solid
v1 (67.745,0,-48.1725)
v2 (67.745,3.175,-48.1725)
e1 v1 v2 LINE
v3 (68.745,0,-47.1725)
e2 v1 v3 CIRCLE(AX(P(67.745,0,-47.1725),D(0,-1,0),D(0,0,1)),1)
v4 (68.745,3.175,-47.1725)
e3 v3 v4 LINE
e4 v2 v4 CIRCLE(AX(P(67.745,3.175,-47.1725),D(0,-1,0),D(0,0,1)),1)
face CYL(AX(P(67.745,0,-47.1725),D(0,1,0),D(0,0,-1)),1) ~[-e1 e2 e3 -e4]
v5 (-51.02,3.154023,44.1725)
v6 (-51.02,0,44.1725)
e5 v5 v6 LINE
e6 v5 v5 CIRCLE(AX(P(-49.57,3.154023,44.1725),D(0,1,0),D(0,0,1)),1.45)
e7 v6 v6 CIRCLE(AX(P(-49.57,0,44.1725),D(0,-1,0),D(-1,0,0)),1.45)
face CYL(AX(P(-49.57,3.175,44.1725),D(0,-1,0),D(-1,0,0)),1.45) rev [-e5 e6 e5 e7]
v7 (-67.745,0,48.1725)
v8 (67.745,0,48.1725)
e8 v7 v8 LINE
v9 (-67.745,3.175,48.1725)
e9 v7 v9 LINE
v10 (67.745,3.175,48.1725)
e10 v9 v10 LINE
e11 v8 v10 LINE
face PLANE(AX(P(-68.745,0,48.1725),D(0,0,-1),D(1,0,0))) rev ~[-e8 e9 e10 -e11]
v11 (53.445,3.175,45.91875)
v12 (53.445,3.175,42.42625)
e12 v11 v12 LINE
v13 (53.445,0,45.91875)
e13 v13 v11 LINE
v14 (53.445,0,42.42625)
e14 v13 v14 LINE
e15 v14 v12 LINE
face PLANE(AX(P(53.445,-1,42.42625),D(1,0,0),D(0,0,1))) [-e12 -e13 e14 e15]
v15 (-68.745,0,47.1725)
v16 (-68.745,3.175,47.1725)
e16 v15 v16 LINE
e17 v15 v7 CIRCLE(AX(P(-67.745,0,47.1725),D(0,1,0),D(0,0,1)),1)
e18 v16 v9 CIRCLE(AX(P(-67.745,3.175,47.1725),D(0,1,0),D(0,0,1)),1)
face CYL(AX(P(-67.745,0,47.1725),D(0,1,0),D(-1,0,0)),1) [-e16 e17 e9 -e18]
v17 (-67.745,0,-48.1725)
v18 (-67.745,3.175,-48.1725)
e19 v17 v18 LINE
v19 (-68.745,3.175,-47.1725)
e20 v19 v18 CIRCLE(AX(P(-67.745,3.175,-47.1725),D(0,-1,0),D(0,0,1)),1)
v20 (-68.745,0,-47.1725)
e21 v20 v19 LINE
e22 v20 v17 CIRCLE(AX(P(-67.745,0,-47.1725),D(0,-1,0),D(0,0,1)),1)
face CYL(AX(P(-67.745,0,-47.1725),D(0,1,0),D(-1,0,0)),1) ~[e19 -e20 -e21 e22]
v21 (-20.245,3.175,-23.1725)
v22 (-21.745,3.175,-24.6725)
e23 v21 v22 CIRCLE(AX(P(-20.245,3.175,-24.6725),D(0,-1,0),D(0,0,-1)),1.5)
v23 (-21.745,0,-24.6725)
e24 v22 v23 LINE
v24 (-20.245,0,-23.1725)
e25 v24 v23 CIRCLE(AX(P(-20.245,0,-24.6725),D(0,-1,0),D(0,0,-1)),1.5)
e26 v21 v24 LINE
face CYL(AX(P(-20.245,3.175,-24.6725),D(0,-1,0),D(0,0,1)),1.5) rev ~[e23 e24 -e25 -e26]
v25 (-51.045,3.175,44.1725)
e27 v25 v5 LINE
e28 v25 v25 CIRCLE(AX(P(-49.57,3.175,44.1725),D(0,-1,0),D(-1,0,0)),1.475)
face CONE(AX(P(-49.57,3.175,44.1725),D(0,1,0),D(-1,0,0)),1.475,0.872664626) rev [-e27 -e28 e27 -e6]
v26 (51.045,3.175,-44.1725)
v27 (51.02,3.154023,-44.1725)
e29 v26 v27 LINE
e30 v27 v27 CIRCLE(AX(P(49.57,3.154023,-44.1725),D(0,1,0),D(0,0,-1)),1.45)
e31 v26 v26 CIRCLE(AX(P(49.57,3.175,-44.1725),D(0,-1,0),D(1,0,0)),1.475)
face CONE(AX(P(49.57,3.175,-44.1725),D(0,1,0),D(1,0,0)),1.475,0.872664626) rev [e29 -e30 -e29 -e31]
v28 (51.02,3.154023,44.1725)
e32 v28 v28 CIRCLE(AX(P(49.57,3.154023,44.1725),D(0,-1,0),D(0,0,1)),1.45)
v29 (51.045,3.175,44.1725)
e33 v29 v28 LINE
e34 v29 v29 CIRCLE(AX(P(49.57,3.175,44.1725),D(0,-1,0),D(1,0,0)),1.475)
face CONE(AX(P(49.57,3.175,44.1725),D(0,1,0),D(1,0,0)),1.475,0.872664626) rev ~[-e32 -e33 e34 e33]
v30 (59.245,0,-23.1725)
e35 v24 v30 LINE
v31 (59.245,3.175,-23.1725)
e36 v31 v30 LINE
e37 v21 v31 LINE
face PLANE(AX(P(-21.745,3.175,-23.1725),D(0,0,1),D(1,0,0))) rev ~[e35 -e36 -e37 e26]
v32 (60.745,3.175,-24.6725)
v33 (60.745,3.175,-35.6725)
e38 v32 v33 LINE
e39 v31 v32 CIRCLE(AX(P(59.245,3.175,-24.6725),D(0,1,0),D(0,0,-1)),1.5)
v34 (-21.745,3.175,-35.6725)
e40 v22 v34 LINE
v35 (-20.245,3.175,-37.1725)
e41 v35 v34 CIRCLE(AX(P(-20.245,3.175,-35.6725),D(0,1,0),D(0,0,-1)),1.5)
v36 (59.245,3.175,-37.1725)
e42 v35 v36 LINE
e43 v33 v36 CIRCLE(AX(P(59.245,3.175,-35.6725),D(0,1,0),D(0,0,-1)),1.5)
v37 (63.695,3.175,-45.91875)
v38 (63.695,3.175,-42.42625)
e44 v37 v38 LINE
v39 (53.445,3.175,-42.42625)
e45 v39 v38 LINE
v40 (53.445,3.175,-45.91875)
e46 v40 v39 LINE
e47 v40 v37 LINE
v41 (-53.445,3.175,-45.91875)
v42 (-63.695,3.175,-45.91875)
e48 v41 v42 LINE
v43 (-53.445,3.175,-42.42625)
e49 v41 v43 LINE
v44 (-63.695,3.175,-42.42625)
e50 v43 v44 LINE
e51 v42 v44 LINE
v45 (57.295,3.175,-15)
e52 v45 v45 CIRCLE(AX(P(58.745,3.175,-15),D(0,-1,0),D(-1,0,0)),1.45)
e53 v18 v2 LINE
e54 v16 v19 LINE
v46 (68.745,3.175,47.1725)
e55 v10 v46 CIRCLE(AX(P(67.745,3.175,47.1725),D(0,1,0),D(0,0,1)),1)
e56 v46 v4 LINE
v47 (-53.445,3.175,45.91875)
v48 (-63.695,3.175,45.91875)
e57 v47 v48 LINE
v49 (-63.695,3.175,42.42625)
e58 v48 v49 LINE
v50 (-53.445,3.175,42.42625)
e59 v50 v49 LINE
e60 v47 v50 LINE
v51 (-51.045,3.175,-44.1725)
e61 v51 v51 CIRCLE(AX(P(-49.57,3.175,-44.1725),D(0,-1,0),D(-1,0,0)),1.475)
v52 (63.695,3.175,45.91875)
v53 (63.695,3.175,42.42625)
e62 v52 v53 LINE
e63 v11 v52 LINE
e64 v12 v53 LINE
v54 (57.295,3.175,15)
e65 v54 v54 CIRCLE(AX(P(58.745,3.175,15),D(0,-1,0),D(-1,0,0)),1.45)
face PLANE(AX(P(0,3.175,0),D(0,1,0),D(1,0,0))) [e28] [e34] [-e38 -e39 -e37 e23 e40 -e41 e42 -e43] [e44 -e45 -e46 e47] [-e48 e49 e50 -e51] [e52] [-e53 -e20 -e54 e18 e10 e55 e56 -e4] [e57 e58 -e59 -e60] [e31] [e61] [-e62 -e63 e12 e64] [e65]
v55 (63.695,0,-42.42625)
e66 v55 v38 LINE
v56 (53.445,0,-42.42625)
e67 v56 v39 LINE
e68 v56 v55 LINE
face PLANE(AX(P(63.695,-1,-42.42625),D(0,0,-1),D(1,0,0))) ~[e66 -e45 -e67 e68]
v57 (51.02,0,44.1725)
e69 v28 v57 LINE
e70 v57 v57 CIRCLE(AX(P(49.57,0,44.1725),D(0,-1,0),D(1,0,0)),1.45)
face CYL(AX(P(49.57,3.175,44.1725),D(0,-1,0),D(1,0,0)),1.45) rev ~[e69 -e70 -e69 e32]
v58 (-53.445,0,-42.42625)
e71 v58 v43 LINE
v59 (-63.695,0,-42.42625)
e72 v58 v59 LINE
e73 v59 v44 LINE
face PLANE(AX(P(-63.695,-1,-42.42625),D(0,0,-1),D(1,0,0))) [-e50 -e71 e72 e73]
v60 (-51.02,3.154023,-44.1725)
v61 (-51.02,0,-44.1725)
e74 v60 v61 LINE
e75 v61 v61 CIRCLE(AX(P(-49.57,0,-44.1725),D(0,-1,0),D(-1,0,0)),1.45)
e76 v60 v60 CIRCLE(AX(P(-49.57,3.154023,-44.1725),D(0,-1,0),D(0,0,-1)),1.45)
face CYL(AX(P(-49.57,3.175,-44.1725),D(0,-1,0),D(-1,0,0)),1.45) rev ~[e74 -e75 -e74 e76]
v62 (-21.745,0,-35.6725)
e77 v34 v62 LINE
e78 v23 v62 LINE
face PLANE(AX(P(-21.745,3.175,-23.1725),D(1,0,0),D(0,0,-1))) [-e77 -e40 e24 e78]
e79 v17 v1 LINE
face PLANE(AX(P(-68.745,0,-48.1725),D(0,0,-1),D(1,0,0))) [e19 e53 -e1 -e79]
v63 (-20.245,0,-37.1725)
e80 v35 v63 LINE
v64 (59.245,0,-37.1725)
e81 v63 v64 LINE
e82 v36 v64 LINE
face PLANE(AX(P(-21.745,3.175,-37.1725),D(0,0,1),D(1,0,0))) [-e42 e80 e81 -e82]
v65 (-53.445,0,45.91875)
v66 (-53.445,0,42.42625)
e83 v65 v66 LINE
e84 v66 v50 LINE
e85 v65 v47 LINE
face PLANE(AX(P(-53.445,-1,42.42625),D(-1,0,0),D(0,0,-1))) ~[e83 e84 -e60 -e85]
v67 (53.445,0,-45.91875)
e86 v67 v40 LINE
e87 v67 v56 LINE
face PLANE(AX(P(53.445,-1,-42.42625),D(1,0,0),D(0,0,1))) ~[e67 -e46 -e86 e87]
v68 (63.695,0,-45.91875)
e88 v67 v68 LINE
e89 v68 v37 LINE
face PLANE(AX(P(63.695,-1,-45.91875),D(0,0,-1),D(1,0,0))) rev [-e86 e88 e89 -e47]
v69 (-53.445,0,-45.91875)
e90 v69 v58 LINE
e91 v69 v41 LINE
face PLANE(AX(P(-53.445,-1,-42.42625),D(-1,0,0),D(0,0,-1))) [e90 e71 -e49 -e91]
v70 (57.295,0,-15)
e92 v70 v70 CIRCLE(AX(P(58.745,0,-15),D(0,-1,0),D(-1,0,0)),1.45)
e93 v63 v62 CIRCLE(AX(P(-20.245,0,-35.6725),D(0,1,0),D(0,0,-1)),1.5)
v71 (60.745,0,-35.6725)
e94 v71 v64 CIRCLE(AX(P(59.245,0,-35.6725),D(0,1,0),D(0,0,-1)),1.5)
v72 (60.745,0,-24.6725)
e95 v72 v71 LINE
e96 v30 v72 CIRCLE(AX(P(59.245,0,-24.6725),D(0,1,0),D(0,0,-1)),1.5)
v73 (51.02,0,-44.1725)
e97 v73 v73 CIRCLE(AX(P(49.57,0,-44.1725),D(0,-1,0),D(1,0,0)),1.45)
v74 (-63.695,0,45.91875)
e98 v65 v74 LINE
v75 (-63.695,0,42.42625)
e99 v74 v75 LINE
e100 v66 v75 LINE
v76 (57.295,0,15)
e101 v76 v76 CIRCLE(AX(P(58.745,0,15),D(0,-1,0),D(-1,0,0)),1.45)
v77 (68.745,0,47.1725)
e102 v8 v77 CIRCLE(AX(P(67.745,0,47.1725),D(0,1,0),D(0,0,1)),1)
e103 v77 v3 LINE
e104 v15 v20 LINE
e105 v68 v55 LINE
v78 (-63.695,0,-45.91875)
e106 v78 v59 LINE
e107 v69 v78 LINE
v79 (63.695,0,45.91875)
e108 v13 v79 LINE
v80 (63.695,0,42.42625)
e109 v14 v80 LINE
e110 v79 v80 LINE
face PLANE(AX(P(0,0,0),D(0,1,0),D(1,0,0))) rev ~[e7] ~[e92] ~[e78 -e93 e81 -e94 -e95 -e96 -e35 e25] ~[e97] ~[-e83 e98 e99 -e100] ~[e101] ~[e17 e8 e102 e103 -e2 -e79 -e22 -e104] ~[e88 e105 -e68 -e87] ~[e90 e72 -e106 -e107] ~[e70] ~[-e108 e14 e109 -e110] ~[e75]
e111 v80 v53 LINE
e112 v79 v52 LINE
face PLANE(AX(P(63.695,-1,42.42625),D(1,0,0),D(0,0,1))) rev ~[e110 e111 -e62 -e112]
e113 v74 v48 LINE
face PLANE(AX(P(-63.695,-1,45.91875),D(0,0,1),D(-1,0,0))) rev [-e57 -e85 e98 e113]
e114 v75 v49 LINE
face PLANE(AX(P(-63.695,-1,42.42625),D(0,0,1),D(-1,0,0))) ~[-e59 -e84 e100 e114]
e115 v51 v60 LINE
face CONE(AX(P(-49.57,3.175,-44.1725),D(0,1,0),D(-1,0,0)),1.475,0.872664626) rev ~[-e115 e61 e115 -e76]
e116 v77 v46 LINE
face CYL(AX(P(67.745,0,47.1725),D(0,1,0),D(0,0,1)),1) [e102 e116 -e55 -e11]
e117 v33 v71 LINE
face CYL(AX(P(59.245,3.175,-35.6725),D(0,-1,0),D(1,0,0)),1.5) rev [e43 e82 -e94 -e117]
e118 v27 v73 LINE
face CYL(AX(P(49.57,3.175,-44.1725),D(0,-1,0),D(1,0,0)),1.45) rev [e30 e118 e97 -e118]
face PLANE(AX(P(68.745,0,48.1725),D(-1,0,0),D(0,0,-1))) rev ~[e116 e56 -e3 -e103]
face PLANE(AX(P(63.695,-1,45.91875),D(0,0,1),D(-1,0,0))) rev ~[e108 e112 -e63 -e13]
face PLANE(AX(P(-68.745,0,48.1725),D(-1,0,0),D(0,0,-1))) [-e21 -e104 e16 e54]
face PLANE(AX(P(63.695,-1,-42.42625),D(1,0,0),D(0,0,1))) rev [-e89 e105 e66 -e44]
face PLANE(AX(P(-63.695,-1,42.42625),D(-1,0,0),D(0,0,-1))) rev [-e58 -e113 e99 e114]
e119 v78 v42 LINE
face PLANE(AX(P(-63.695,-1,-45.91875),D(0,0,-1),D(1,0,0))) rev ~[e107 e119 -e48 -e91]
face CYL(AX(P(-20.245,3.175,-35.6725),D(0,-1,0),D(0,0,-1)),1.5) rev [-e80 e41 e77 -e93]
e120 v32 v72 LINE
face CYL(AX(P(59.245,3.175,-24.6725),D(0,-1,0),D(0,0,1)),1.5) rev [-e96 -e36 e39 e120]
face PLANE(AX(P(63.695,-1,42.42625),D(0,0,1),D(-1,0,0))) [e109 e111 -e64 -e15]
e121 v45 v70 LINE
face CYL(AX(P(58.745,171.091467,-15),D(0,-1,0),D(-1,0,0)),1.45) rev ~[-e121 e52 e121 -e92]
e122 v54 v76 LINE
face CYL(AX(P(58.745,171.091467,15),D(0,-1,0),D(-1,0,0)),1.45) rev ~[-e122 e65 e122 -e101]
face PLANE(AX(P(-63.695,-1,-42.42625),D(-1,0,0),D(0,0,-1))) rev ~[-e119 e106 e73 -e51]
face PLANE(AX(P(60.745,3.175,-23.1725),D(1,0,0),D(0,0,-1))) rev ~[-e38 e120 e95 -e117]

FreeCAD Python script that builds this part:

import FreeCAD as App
import Part
import Sketcher

V = App.Vector
Q = App.Units.Quantity


def edges_at(feature, points):
    """Names of the edges that pass closest to the given points."""
    edges = feature.Shape.Edges
    near = lambda p: min(range(len(edges)), key=lambda i: edges[i].distToShape(Part.Vertex(*p))[0])
    return sorted({f"Edge{near(p) + 1}" for p in points})


def add_polygon(sketch, points):
    """Adds a closed chain of lines whose ends are joined by coincident constraints."""
    first, n = sketch.GeometryCount, len(points)
    for a, b in zip(points, points[1:] + points[:1]):
        sketch.addGeometry(Part.LineSegment(App.Vector(*a, 0), App.Vector(*b, 0)), False)
    for i in range(n):
        sketch.addConstraint(Sketcher.Constraint("Coincident", first + i, 2, first + (i + 1) % n, 1))

doc = App.newDocument("Part")
body = doc.addObject("PartDesign::Body", "Body")

sketch1 = body.newObject("Sketcher::SketchObject", "Sketch")
sketch1.AttachmentSupport = (doc.getObject("XZ_Plane"), [""])
sketch1.MapMode = "FlatFace"
add_polygon(sketch1, [(-68.745, -48.1725), (-68.745, 48.1725), (68.745, 48.1725), (68.745, -48.1725)])
sketch1.addConstraint([
    Sketcher.Constraint("Vertical", 0),
    Sketcher.Constraint("Horizontal", 1),
    Sketcher.Constraint("Vertical", 2),
    Sketcher.Constraint("Horizontal", 3),
    Sketcher.Constraint("Symmetric", 0, 2, 2, 2, -1, 1),
    Sketcher.Constraint("DistanceX", 1, 1, 1, 2, Q("137.49 mm")),
    Sketcher.Constraint("DistanceY", 0, 1, 0, 2, Q("96.345 mm")),
])
pad1 = body.newObject("PartDesign::Pad", "Pad")
pad1.Profile = sketch1
pad1.Length = 3.175
pad1.Reversed = True

sketch2 = body.newObject("Sketcher::SketchObject", "Sketch001")
sketch2.AttachmentSupport = (doc.getObject("XZ_Plane"), [""])
sketch2.MapMode = "FlatFace"
sketch2.AttachmentOffset = App.Placement(V(0, 0, 1), App.Rotation())
add_polygon(sketch2, [(-63.695, -45.91875), (-63.695, -42.42625), (-53.445, -42.42625), (-53.445, -45.91875)])
sketch2.addConstraint([
    Sketcher.Constraint("Vertical", 0),
    Sketcher.Constraint("Horizontal", 1),
    Sketcher.Constraint("Vertical", 2),
    Sketcher.Constraint("Horizontal", 3),
    Sketcher.Constraint("DistanceX", 1, 1, 1, 2, Q("10.25 mm")),
    Sketcher.Constraint("DistanceY", 0, 1, 0, 2, Q("3.4925 mm")),
    Sketcher.Constraint("DistanceX", 0, 2, -1, 1, Q("63.695 mm")),
    Sketcher.Constraint("DistanceY", 0, 2, -1, 1, Q("42.42625 mm")),
])
pocket1 = body.newObject("PartDesign::Pocket", "Pocket")
pocket1.Profile = sketch2
pocket1.Length = 5.175

sketch3 = body.newObject("Sketcher::SketchObject", "Sketch002")
sketch3.AttachmentSupport = (doc.getObject("XZ_Plane"), [""])
sketch3.MapMode = "FlatFace"
sketch3.AttachmentOffset = App.Placement(V(0, 0, -3.175), App.Rotation())
sketch3.addGeometry(Part.Circle(V(-49.57, -44.1725, 0), V(0, 0, 1), 1.45), False)
sketch3.addConstraint([
    Sketcher.Constraint("Diameter", 0, Q("2.9 mm")),
    Sketcher.Constraint("DistanceX", 0, 3, -1, 1, Q("49.57 mm")),
    Sketcher.Constraint("DistanceY", 0, 3, -1, 1, Q("44.1725 mm")),
])
doc.recompute()
hole = body.newObject("PartDesign::Hole", "Hole")
hole.Profile = sketch3
hole.ThreadType = "None"
hole.Diameter = 2.9
hole.DepthType = "ThroughAll"
hole.HoleCutType = "Countersink"
hole.HoleCutDiameter = 2.95
hole.HoleCutCountersinkAngle = 100
hole.Reversed = True
doc.recompute()

mirrored = body.newObject("PartDesign::Mirrored", "Mirrored")
mirrored.Originals = [pocket1, hole]
mirrored.MirrorPlane = (doc.getObject("YZ_Plane"), [""])
body.Tip = mirrored
doc.recompute()

mirrored2 = body.newObject("PartDesign::Mirrored", "Mirrored001")
mirrored2.Originals = [hole, pocket1]
mirrored2.MirrorPlane = (doc.getObject("XY_Plane"), [""])
body.Tip = mirrored2

sketch4 = body.newObject("Sketcher::SketchObject", "Sketch003")
sketch4.AttachmentSupport = (doc.getObject("XZ_Plane"), [""])
sketch4.MapMode = "FlatFace"
sketch4.AttachmentOffset = App.Placement(V(0, 0, 1), App.Rotation())
add_polygon(sketch4, [(63.695, 45.91875), (63.695, 42.42625), (53.445, 42.42625), (53.445, 45.91875)])
sketch4.addConstraint([
    Sketcher.Constraint("Vertical", 0),
    Sketcher.Constraint("Horizontal", 1),
    Sketcher.Constraint("Vertical", 2),
    Sketcher.Constraint("Horizontal", 3),
    Sketcher.Constraint("DistanceX", 1, 2, 1, 1, Q("10.25 mm")),
    Sketcher.Constraint("DistanceY", 0, 2, 0, 1, Q("3.4925 mm")),
    Sketcher.Constraint("DistanceX", -1, 1, 0, 2, Q("63.695 mm")),
    Sketcher.Constraint("DistanceY", -1, 1, 0, 2, Q("42.42625 mm")),
])
pocket2 = body.newObject("PartDesign::Pocket", "Pocket001")
pocket2.Profile = sketch4
pocket2.Length = 5.175

sketch5 = body.newObject("Sketcher::SketchObject", "Sketch004")
sketch5.AttachmentSupport = (doc.getObject("XZ_Plane"), [""])
sketch5.MapMode = "FlatFace"
sketch5.AttachmentOffset = App.Placement(V(0, 0, -3.175), App.Rotation())
sketch5.addGeometry(Part.Circle(V(49.57, 44.1725, 0), V(0, 0, 1), 1.45), False)
sketch5.addConstraint([
    Sketcher.Constraint("Diameter", 0, Q("2.9 mm")),
    Sketcher.Constraint("DistanceX", -1, 1, 0, 3, Q("49.57 mm")),
    Sketcher.Constraint("DistanceY", -1, 1, 0, 3, Q("44.1725 mm")),
])
doc.recompute()
hole2 = body.newObject("PartDesign::Hole", "Hole001")
hole2.Profile = sketch5
hole2.ThreadType = "None"
hole2.Diameter = 2.9
hole2.DepthType = "ThroughAll"
hole2.HoleCutType = "Countersink"
hole2.HoleCutDiameter = 2.95
hole2.HoleCutCountersinkAngle = 100
hole2.Reversed = True

sketch6 = body.newObject("Sketcher::SketchObject", "Sketch005")
sketch6.AttachmentSupport = (doc.getObject("XZ_Plane"), [""])
sketch6.MapMode = "FlatFace"
sketch6.AttachmentOffset = App.Placement(V(0, 0, -3.175), App.Rotation())
add_polygon(sketch6, [(-21.745, -37.1725), (-21.745, -23.1725), (60.745, -23.1725), (60.745, -37.1725)])
sketch6.addConstraint([
    Sketcher.Constraint("Vertical", 0),
    Sketcher.Constraint("Horizontal", 1),
    Sketcher.Constraint("Vertical", 2),
    Sketcher.Constraint("Horizontal", 3),
    Sketcher.Constraint("DistanceY", 0, 1, 0, 2, Q("14 mm")),
    Sketcher.Constraint("DistanceX", 1, 1, 1, 2, Q("82.49 mm")),
    Sketcher.Constraint("DistanceX", 0, 2, -1, 1, Q("21.745 mm")),
    Sketcher.Constraint("DistanceY", 0, 2, -1, 1, Q("23.1725 mm")),
])
pocket3 = body.newObject("PartDesign::Pocket", "Pocket002")
pocket3.Profile = sketch6
pocket3.Type = "ThroughAll"
pocket3.Midplane = True
doc.recompute()

fillet = body.newObject("PartDesign::Fillet", "Fillet")
fillet.Base = (pocket3, edges_at(pocket3, [
    (-21.745, 1.587, -23.172),
    (-21.745, 1.587, -37.172),
    (60.745, 1.587, -37.172),
    (60.745, 1.587, -23.172),
]))
fillet.Radius = 1.5
doc.recompute()

fillet2 = body.newObject("PartDesign::Fillet", "Fillet001")
fillet2.Base = (fillet, edges_at(fillet, [
    (-68.745, 1.587, 48.172),
    (-68.745, 1.587, -48.172),
    (68.745, 1.587, -48.172),
    (68.745, 1.587, 48.172),
]))
fillet2.Radius = 1

sketch7 = body.newObject("Sketcher::SketchObject", "Sketch006")
sketch7.AttachmentSupport = (doc.getObject("XZ_Plane"), [""])
sketch7.MapMode = "FlatFace"
sketch7.AttachmentOffset = App.Placement(V(0, 0, -3.175), App.Rotation())
sketch7.addGeometry([
    Part.Circle(V(58.745, -15, 0), V(0, 0, 1), 1.45),
    Part.Circle(V(58.745, 15, 0), V(0, 0, 1), 1.45),
], False)
sketch7.addConstraint([
    Sketcher.Constraint("Equal", 0, 1),
    Sketcher.Constraint("Symmetric", 0, 3, 1, 3, -1),
    Sketcher.Constraint("Diameter", 0, Q("2.9 mm")),
    Sketcher.Constraint("DistanceY", 0, 3, -1, 1, Q("15 mm")),
    Sketcher.Constraint("DistanceX", -1, 1, 0, 3, Q("58.745 mm")),
])
doc.recompute()
hole3 = body.newObject("PartDesign::Hole", "Hole002")
hole3.Profile = sketch7
hole3.ThreadType = "None"
hole3.Diameter = 2.9
hole3.DepthType = "ThroughAll"
hole3.Reversed = True

doc.recompute()
